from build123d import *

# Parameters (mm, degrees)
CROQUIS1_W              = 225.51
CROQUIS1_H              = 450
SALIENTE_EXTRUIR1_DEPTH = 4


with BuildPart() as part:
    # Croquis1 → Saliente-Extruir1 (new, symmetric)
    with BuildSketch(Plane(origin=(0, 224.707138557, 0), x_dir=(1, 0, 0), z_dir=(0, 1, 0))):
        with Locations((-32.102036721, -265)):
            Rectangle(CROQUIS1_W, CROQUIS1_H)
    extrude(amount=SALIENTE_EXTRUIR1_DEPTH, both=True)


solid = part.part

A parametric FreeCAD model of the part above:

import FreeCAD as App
import Part
import Sketcher

doc = App.newDocument("Part")
body = doc.addObject("PartDesign::Body", "Body")

# Sketch on XZ plane
sketch1 = body.newObject("Sketcher::SketchObject", "Sketch")
sketch1.AttachmentSupport = (doc.getObject("XZ_Plane"), [""])
sketch1.MapMode = "FlatFace"
sketch1.AttachmentOffset = App.Placement(App.Vector(0, 0, -224.707139), App.Rotation())
sketch1.addGeometry([
    Part.LineSegment(App.Vector(-145, 40, 0), App.Vector(-145, 490, 0)),
    Part.LineSegment(App.Vector(-145, 490, 0), App.Vector(81, 490, 0)),
    Part.LineSegment(App.Vector(81, 490, 0), App.Vector(81, 40, 0)),
    Part.LineSegment(App.Vector(81, 40, 0), App.Vector(-145, 40, 0)),
], False)
sketch1.addConstraint([
    Sketcher.Constraint("Coincident", 0, 2, 1, 1),
    Sketcher.Constraint("Coincident", 1, 2, 2, 1),
    Sketcher.Constraint("Coincident", 2, 2, 3, 1),
    Sketcher.Constraint("Coincident", 3, 2, 0, 1),
    Sketcher.Constraint("Vertical", 0),
    Sketcher.Constraint("Horizontal", 1),
    Sketcher.Constraint("Vertical", 2),
    Sketcher.Constraint("Horizontal", 3),
    Sketcher.Constraint("DistanceY", 0, 1, 0, 2, 450.0),
    Sketcher.Constraint("DistanceY", -1, 1, 0, 2, 490.0),
    Sketcher.Constraint("DistanceX", 1, 1, 1, 2, 225.51),
    Sketcher.Constraint("DistanceX", 0, 2, -1, 1, 144.857037),
])
pad1 = body.newObject("PartDesign::Pad", "Pad")
pad1.Profile = sketch1
pad1.Length = 8
pad1.Midplane = True

doc.recompute()
